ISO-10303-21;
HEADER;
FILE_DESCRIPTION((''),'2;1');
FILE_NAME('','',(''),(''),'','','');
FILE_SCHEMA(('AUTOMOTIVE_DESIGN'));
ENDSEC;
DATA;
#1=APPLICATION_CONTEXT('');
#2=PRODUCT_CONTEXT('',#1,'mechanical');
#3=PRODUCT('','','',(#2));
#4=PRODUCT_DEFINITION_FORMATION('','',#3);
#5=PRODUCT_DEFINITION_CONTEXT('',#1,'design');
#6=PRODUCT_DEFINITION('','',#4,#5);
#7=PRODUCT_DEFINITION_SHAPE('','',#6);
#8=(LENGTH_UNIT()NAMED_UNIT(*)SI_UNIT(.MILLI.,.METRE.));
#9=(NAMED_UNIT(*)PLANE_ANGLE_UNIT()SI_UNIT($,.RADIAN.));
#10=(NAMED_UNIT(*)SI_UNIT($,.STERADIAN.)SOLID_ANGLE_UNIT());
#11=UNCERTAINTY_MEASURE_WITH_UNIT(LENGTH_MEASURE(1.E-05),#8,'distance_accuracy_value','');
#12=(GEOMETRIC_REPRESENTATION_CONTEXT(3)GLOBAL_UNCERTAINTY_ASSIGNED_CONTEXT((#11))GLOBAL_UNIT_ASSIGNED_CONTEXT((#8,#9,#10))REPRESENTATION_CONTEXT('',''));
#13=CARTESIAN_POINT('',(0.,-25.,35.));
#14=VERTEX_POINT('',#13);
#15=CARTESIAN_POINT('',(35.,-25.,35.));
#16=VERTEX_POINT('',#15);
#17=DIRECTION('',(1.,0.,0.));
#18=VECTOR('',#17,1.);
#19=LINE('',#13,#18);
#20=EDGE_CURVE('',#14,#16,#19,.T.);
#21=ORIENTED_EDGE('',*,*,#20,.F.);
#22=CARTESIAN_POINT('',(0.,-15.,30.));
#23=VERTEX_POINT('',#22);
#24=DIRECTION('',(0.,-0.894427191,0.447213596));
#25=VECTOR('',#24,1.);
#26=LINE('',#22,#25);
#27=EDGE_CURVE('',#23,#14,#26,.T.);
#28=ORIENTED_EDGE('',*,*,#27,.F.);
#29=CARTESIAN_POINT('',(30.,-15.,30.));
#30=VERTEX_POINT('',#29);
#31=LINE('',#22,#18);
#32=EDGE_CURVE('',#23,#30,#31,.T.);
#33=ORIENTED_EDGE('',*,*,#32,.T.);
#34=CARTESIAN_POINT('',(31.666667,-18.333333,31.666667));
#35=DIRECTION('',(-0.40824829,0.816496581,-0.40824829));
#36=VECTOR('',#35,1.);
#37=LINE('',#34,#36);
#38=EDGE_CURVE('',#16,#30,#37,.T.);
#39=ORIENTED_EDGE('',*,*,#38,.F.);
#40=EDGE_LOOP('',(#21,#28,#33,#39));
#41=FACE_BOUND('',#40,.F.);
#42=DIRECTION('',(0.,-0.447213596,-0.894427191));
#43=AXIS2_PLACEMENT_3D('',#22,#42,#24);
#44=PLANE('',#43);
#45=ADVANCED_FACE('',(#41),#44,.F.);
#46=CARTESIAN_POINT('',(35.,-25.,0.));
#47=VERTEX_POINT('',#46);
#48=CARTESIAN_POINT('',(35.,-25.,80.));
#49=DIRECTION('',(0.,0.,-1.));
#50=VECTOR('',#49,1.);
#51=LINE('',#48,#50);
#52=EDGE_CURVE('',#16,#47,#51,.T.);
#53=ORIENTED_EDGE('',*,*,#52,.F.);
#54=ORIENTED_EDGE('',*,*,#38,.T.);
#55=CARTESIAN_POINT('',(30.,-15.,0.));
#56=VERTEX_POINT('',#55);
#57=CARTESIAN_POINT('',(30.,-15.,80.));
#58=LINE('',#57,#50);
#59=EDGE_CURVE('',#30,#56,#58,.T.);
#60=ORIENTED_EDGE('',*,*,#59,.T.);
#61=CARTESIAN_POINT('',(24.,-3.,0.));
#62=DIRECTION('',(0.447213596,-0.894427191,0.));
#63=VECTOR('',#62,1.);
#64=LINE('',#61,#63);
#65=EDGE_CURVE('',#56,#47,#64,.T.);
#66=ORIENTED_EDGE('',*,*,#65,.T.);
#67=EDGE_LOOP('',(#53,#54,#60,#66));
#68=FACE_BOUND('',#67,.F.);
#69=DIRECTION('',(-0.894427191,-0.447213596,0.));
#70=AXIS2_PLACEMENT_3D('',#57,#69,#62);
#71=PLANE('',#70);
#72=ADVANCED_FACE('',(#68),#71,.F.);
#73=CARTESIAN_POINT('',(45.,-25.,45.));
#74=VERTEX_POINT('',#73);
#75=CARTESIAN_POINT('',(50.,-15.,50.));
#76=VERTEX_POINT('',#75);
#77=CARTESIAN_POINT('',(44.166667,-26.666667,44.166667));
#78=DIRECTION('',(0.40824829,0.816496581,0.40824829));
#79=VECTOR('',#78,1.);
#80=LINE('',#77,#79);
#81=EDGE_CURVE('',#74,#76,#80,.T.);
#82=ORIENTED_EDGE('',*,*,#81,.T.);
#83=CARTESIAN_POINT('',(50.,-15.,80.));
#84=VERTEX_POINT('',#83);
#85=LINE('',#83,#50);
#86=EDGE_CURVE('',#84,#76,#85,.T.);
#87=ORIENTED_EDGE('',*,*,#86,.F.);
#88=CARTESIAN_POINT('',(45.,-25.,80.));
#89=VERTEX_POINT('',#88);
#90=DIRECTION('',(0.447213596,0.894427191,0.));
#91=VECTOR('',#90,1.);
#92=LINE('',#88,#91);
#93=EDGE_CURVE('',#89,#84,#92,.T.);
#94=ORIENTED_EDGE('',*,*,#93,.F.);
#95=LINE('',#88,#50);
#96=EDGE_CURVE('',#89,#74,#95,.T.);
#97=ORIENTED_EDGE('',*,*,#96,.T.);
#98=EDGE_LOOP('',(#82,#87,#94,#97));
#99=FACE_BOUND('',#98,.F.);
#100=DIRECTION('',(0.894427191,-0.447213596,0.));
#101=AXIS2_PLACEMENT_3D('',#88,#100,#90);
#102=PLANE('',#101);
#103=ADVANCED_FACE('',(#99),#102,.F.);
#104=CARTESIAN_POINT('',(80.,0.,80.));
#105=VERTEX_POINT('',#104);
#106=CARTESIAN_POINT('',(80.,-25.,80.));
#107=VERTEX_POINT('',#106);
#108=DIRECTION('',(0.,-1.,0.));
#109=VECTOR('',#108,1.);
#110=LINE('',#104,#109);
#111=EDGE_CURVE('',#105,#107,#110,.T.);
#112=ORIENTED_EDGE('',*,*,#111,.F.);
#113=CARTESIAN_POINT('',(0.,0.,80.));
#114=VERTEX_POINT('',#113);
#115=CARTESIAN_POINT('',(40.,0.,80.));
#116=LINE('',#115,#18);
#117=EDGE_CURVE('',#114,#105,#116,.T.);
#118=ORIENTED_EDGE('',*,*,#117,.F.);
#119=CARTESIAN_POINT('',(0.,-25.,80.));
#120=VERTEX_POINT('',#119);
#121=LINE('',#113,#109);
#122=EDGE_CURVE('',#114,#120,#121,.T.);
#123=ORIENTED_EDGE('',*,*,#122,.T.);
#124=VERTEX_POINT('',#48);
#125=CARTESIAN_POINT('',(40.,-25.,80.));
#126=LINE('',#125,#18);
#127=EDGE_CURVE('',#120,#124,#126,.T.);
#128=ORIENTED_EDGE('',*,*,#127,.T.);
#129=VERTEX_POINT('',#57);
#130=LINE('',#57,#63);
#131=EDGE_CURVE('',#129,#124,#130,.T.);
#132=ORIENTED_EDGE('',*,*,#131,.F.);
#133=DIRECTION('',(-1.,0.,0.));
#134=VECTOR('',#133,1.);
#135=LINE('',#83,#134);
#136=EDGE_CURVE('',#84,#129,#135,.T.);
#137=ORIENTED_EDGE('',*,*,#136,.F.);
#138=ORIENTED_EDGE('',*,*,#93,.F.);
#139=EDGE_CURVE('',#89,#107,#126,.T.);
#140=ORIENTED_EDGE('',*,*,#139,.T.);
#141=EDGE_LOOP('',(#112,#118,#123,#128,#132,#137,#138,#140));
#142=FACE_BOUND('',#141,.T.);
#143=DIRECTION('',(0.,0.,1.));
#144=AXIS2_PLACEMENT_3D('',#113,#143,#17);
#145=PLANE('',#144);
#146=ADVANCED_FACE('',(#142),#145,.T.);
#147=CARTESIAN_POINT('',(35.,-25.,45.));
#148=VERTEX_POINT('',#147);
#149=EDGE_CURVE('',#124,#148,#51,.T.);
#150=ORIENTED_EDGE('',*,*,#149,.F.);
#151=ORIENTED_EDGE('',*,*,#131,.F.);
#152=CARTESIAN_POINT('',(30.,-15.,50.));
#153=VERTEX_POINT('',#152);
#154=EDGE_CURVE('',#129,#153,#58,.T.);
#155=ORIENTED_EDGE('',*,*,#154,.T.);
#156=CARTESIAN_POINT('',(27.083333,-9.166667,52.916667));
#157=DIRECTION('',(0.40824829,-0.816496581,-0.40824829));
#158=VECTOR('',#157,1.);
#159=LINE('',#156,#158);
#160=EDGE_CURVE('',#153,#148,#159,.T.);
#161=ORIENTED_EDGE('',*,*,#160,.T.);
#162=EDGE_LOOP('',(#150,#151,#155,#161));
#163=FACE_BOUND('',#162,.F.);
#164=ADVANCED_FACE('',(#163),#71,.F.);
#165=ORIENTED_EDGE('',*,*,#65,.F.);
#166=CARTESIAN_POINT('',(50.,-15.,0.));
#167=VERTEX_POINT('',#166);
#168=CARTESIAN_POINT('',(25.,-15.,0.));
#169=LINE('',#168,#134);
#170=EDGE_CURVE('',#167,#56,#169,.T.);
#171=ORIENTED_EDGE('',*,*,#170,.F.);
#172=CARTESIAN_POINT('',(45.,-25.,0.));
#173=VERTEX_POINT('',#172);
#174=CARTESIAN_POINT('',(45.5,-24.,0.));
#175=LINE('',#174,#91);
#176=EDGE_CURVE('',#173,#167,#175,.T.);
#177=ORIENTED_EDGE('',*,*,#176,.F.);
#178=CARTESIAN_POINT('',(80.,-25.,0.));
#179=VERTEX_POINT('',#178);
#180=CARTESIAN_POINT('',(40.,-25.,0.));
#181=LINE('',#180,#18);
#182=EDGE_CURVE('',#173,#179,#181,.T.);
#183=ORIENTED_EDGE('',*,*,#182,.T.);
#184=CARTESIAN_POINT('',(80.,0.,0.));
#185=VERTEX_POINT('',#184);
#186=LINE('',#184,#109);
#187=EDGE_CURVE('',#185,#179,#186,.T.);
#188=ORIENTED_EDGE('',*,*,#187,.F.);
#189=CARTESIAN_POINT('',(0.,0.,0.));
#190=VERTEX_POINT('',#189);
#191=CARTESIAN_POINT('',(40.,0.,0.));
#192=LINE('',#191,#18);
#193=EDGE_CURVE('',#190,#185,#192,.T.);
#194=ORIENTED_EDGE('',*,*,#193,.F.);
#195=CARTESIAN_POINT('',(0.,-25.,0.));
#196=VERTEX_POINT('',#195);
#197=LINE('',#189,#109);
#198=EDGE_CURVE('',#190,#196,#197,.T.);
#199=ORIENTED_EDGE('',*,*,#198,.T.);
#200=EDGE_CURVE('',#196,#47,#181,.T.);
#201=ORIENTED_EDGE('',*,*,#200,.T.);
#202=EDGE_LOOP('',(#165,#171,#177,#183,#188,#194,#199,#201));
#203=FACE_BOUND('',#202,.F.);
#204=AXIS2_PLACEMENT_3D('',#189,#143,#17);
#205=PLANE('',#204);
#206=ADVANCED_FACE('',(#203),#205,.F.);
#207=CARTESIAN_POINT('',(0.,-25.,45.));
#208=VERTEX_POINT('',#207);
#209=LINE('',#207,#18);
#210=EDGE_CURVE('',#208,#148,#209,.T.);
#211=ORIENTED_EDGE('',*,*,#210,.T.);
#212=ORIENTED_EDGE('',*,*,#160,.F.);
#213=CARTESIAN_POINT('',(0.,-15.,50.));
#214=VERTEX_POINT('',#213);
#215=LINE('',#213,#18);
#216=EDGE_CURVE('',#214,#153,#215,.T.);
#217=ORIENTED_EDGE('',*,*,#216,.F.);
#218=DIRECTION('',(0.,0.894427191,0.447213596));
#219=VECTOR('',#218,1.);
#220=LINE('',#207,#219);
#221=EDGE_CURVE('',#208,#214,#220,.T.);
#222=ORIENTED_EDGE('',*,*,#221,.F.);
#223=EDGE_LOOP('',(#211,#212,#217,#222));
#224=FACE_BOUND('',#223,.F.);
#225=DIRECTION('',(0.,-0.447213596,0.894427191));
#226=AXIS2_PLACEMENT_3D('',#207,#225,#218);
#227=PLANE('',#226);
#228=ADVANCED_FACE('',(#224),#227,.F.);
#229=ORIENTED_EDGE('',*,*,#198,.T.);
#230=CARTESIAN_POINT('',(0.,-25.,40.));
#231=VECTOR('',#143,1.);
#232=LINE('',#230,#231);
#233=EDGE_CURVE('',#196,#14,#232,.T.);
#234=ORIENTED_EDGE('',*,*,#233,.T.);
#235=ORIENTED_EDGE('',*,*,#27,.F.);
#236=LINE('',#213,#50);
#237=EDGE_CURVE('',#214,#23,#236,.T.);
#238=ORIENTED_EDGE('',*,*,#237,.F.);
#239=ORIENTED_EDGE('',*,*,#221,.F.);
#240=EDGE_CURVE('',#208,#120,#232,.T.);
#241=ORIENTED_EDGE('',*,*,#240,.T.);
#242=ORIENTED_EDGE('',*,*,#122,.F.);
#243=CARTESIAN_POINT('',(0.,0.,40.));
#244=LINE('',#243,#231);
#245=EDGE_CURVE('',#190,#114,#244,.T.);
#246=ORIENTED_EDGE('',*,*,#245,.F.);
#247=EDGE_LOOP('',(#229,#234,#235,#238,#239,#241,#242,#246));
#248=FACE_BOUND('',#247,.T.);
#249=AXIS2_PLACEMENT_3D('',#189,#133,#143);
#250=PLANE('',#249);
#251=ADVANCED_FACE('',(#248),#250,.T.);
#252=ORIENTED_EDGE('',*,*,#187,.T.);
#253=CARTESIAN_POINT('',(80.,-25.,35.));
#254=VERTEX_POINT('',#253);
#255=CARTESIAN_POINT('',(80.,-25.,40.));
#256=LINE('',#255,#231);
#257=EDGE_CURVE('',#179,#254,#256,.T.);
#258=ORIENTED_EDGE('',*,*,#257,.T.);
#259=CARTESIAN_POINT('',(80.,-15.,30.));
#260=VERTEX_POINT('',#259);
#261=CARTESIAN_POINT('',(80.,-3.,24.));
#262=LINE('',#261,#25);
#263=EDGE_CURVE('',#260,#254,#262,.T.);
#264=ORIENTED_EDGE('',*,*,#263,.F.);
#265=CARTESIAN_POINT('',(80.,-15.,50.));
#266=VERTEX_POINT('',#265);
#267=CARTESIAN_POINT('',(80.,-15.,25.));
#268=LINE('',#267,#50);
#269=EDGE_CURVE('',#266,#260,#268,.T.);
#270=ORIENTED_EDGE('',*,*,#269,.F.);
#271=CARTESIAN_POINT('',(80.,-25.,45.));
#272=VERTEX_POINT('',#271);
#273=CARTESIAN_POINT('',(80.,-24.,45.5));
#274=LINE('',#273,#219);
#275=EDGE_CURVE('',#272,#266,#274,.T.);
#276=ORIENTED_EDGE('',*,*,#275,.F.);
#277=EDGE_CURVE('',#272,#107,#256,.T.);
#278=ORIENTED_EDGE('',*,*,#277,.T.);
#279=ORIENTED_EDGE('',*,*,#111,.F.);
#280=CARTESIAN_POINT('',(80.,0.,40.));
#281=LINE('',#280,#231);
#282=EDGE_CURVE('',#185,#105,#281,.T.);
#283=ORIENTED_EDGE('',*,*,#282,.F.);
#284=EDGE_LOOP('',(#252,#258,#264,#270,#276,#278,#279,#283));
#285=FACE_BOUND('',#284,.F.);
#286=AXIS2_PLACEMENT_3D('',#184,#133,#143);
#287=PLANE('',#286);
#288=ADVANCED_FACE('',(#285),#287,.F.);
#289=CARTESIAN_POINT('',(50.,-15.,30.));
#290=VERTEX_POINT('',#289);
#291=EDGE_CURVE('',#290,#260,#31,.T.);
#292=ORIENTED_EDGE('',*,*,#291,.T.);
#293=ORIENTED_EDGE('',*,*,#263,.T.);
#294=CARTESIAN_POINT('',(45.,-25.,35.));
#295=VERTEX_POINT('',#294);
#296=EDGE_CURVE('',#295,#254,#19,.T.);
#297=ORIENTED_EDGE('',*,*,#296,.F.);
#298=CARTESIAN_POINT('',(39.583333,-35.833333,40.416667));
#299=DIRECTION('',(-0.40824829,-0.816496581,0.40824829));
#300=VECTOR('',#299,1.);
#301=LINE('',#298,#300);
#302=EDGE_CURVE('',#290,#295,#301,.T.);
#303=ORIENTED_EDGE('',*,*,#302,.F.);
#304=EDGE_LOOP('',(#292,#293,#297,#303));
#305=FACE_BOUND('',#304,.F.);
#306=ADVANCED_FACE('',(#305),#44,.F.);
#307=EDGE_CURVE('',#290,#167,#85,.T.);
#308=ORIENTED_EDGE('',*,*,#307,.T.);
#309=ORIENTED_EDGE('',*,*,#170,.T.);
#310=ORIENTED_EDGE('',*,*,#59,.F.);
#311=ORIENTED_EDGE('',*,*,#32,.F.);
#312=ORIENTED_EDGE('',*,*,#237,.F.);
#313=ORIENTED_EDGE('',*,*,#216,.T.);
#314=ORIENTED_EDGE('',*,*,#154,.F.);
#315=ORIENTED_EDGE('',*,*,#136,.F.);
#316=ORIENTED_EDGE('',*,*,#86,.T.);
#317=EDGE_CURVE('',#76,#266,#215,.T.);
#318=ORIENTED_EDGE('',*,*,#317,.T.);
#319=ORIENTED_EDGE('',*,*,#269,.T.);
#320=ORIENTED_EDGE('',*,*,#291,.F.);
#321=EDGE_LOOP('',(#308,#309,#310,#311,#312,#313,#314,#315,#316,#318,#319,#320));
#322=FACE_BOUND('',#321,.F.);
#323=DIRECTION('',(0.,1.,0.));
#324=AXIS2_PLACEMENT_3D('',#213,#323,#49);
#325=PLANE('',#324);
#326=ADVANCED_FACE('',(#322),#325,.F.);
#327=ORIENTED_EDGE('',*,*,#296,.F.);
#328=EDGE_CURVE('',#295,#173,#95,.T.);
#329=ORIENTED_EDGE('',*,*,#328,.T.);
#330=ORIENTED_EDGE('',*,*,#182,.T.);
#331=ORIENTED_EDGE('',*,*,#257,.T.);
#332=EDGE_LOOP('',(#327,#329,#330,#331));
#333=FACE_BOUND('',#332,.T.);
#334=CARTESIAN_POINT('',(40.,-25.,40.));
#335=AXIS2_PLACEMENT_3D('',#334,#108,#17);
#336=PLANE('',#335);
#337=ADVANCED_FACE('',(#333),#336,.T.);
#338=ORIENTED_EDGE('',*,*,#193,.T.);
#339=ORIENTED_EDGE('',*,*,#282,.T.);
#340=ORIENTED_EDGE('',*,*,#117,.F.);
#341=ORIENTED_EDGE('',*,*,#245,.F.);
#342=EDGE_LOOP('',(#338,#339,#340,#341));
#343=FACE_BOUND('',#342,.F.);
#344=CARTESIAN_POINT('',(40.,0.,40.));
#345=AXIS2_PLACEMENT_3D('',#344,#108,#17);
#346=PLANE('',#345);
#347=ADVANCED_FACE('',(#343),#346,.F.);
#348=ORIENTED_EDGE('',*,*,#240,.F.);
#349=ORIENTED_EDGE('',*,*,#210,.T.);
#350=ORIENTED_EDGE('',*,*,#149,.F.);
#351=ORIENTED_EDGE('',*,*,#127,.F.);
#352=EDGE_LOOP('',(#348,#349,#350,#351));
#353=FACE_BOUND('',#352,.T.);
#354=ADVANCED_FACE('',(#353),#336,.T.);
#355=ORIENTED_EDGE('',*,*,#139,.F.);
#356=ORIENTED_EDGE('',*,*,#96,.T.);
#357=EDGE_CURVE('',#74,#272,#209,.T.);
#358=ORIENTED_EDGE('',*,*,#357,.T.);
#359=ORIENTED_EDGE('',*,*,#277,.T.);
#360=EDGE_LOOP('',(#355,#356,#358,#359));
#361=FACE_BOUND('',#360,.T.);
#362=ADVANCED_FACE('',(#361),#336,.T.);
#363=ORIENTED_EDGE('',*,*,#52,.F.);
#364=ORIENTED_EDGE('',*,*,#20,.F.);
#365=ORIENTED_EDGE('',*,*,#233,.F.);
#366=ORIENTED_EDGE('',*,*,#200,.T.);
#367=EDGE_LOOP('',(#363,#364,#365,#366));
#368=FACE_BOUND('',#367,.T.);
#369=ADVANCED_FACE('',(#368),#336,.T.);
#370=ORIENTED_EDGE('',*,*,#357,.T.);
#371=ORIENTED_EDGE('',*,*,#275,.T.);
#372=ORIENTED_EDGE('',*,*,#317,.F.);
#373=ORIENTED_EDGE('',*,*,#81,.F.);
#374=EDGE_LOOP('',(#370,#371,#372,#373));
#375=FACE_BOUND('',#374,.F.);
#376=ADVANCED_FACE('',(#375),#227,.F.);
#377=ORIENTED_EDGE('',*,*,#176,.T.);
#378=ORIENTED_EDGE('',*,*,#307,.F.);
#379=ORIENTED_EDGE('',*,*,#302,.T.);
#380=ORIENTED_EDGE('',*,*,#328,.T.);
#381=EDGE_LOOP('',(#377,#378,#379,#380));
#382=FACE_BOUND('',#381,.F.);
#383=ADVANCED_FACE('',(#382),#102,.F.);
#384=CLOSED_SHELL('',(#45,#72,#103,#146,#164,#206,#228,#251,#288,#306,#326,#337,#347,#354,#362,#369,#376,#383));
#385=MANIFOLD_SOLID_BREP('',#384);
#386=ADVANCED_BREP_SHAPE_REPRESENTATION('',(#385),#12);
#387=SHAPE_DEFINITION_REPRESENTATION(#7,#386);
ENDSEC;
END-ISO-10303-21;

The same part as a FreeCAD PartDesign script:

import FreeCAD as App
import Part
import Sketcher

V = App.Vector

doc = App.newDocument("Part")
body = doc.addObject("PartDesign::Body", "Body")

# Sketch on XZ plane
sketch1 = body.newObject("Sketcher::SketchObject", "Sketch")
sketch1.AttachmentSupport = (doc.getObject("XZ_Plane"), [""])
sketch1.MapMode = "FlatFace"
sketch1.addGeometry([
    Part.LineSegment(V(0, 80, 0), V(0, 0, 0)),
    Part.LineSegment(V(0, 0, 0), V(80, 0, 0)),
    Part.LineSegment(V(80, 0, 0), V(80, 80, 0)),
    Part.LineSegment(V(80, 80, 0), V(0, 80, 0)),
], False)
sketch1.addConstraint([
    Sketcher.Constraint("Coincident", 0, 2, 1, 1),
    Sketcher.Constraint("Coincident", 1, 2, 2, 1),
    Sketcher.Constraint("Coincident", 2, 2, 3, 1),
    Sketcher.Constraint("Coincident", 3, 2, 0, 1),
    Sketcher.Constraint("Vertical", 0),
    Sketcher.Constraint("Horizontal", 1),
    Sketcher.Constraint("Vertical", 2),
    Sketcher.Constraint("Horizontal", 3),
    Sketcher.Constraint("Coincident", 0, 2, -1, 1),
    Sketcher.Constraint("Equal", 3, 0),
    Sketcher.Constraint("DistanceX", 1, 1, 1, 2, 80.0),
])
pad1 = body.newObject("PartDesign::Pad", "Pad")
pad1.Profile = sketch1
pad1.Length = 25

# Sketch on YZ plane
sketch2 = body.newObject("Sketcher::SketchObject", "Sketch001")
sketch2.AttachmentSupport = (doc.getObject("YZ_Plane"), [""])
sketch2.MapMode = "FlatFace"
sketch2.addGeometry([
    Part.LineSegment(V(-25, 45, 0), V(-15, 50, 0)),
    Part.LineSegment(V(-15, 50, 0), V(-15, 30, 0)),
    Part.LineSegment(V(-15, 30, 0), V(-25, 35, 0)),
    Part.LineSegment(V(-25, 35, 0), V(-25, 45, 0)),
], False)
sketch2.addConstraint([
    Sketcher.Constraint("Coincident", 0, 2, 1, 1),
    Sketcher.Constraint("Coincident", 1, 2, 2, 1),
    Sketcher.Constraint("Coincident", 2, 2, 3, 1),
    Sketcher.Constraint("Coincident", 3, 2, 0, 1),
    Sketcher.Constraint("Vertical", 1),
    Sketcher.Constraint("Vertical", 3),
    Sketcher.Constraint("Equal", 0, 2),
    Sketcher.Constraint("DistanceY", 1, 2, 1, 1, 20.0),
    Sketcher.Constraint("DistanceY", 3, 1, 3, 2, 10.0),
    Sketcher.Constraint("DistanceX", 0, 2, -1, 1, 15.0),
    Sketcher.Constraint("DistanceY", -1, 1, 0, 2, 50.0),
    Sketcher.Constraint("DistanceX", 2, 2, -1, 1, 25.0),
])
pocket1 = body.newObject("PartDesign::Pocket", "Pocket")
pocket1.Profile = sketch2
pocket1.Length = 85
pocket1.Reversed = True

# Sketch on XY plane
sketch3 = body.newObject("Sketcher::SketchObject", "Sketch002")
sketch3.AttachmentSupport = (doc.getObject("XY_Plane"), [""])
sketch3.MapMode = "FlatFace"
sketch3.AttachmentOffset = App.Placement(V(0, 0, 80), App.Rotation())
sketch3.addGeometry([
    Part.LineSegment(V(50, -15, 0), V(30, -15, 0)),
    Part.LineSegment(V(30, -15, 0), V(35, -25, 0)),
    Part.LineSegment(V(35, -25, 0), V(45, -25, 0)),
    Part.LineSegment(V(45, -25, 0), V(50, -15, 0)),
], False)
sketch3.addConstraint([
    Sketcher.Constraint("Coincident", 0, 2, 1, 1),
    Sketcher.Constraint("Coincident", 1, 2, 2, 1),
    Sketcher.Constraint("Coincident", 2, 2, 3, 1),
    Sketcher.Constraint("Coincident", 3, 2, 0, 1),
    Sketcher.Constraint("Horizontal", 0),
    Sketcher.Constraint("Horizontal", 2),
    Sketcher.Constraint("Equal", 1, 3),
    Sketcher.Constraint("DistanceX", 0, 2, 0, 1, 20.0),
    Sketcher.Constraint("DistanceX", 2, 1, 2, 2, 10.0),
    Sketcher.Constraint("DistanceX", -1, 1, 0, 2, 30.0),
    Sketcher.Constraint("DistanceY", 0, 2, -1, 1, 15.0),
    Sketcher.Constraint("DistanceY", 1, 2, -1, 1, 25.0),
])
pocket2 = body.newObject("PartDesign::Pocket", "Pocket001")
pocket2.Profile = sketch3
pocket2.Length = 85

doc.recompute()
